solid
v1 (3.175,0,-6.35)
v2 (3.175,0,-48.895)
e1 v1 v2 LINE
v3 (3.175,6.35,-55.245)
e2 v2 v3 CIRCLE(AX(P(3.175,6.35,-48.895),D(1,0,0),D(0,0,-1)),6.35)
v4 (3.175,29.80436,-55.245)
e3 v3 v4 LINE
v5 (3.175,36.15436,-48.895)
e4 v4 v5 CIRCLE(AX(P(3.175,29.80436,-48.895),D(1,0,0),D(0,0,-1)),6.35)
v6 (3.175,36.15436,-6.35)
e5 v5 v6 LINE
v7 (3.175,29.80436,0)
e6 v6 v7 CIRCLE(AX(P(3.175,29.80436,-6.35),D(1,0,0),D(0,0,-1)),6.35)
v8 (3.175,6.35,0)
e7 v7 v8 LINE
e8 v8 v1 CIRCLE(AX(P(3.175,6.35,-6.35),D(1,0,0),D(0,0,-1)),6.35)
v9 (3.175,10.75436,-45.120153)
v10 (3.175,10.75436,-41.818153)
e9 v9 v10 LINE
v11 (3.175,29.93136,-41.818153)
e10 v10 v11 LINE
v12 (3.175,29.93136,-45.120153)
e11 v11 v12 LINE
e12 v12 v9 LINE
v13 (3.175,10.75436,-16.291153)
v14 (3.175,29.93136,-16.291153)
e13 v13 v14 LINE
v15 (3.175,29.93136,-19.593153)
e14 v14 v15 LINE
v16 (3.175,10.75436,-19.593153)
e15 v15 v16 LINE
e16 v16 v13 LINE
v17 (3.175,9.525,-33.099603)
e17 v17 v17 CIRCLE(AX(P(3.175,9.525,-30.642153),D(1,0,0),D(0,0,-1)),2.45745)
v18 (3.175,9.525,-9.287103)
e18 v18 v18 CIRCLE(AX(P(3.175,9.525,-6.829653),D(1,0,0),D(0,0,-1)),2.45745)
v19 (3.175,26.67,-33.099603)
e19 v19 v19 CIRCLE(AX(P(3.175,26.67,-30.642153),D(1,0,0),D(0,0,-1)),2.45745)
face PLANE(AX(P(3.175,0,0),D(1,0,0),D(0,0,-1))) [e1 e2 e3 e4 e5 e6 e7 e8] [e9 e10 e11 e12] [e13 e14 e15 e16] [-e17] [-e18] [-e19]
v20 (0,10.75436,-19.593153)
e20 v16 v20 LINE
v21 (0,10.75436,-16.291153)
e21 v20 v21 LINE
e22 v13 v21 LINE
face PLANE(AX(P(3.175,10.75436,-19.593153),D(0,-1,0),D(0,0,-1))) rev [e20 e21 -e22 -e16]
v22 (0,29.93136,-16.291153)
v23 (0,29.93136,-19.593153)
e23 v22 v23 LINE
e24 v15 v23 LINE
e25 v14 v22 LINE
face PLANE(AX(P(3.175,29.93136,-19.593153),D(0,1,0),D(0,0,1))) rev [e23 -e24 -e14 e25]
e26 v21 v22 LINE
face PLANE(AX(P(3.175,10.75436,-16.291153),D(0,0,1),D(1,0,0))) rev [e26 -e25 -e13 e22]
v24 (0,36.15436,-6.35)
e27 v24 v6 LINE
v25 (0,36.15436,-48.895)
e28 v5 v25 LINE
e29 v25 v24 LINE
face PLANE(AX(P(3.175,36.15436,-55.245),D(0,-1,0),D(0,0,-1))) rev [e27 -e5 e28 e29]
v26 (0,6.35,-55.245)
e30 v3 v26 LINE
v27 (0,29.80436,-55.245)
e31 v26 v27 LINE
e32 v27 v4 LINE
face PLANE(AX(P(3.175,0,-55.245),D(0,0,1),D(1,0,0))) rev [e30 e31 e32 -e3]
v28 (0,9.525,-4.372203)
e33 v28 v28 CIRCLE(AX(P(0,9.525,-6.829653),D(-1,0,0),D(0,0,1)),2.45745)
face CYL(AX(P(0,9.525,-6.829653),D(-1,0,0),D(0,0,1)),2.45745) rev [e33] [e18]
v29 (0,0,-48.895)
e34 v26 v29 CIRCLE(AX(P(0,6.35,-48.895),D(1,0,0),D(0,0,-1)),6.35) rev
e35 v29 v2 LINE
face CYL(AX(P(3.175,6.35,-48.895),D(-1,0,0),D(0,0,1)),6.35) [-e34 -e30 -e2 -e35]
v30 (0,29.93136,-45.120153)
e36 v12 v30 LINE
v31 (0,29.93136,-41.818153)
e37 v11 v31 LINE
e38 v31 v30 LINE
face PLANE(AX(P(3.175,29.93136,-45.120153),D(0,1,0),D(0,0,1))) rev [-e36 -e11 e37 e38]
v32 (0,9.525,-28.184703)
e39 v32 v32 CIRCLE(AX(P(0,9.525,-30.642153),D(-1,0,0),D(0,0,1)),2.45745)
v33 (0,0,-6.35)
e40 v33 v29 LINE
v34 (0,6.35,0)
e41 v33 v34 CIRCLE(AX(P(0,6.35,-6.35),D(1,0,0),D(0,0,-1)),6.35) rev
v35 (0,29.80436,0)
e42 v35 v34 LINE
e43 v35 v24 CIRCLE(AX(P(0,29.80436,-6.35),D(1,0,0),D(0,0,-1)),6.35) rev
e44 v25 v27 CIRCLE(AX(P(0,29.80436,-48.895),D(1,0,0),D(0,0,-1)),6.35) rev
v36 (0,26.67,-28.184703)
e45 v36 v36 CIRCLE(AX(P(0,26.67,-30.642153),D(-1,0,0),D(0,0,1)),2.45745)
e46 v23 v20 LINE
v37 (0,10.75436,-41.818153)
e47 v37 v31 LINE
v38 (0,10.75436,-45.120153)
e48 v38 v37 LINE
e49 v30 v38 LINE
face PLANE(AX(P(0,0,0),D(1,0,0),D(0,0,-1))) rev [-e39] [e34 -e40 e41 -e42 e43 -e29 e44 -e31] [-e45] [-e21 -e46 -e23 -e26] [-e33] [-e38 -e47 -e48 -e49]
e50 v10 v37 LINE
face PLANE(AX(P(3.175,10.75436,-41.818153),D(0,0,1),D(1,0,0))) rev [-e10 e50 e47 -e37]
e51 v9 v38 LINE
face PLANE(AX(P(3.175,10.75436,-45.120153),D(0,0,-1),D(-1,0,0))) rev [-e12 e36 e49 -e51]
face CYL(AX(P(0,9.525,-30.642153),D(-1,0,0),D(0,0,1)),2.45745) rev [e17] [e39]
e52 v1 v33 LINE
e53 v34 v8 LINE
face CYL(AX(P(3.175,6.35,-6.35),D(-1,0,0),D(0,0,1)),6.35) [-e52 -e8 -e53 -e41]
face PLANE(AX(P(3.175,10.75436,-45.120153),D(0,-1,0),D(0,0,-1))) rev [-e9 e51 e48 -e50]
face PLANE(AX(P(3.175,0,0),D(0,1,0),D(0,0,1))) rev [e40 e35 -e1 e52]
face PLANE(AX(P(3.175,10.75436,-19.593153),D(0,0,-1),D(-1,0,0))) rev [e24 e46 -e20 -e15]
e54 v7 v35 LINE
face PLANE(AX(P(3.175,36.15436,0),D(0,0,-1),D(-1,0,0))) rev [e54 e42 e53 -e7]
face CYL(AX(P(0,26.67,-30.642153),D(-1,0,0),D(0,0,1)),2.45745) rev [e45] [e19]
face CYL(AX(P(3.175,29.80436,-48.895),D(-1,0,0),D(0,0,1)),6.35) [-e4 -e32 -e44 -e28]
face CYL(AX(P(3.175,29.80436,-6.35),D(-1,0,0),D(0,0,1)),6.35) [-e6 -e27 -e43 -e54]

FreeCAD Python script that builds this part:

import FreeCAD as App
import Part
import Sketcher
Q = App.Units.Quantity


def edges_at(feature, points):
    """Names of the edges that pass closest to the given points."""
    edges = feature.Shape.Edges
    near = lambda p: min(range(len(edges)), key=lambda i: edges[i].distToShape(Part.Vertex(*p))[0])
    return sorted({f"Edge{near(p) + 1}" for p in points})

doc = App.newDocument("Part")
body = doc.addObject("PartDesign::Body", "Body")

# Sketch on YZ plane
sketch1 = body.newObject("Sketcher::SketchObject", "Sketch")
sketch1.AttachmentSupport = (doc.getObject("YZ_Plane"), [""])
sketch1.MapMode = "FlatFace"
sketch1.addGeometry(Part.LineSegment(App.Vector(36, 0, 0), App.Vector(0, 0, 0)), False)
sketch1.addGeometry(Part.LineSegment(App.Vector(0, 0, 0), App.Vector(0, -55, 0)), False)
sketch1.addGeometry(Part.LineSegment(App.Vector(0, -55, 0), App.Vector(36, -55, 0)), False)
sketch1.addGeometry(Part.LineSegment(App.Vector(36, -55, 0), App.Vector(36, 0, 0)), False)
sketch1.addConstraint(Sketcher.Constraint("Coincident", 0, 2, 1, 1))
sketch1.addConstraint(Sketcher.Constraint("Coincident", 1, 2, 2, 1))
sketch1.addConstraint(Sketcher.Constraint("Coincident", 2, 2, 3, 1))
sketch1.addConstraint(Sketcher.Constraint("Coincident", 3, 2, 0, 1))
sketch1.addConstraint(Sketcher.Constraint("Horizontal", 0))
sketch1.addConstraint(Sketcher.Constraint("Vertical", 1))
sketch1.addConstraint(Sketcher.Constraint("Horizontal", 2))
sketch1.addConstraint(Sketcher.Constraint("Vertical", 3))
sketch1.addConstraint(Sketcher.Constraint("Coincident", 0, 2, -1, 1))
sketch1.addConstraint(Sketcher.Constraint("DistanceY", 1, 2, 1, 1, Q("2.175 in")))
sketch1.addConstraint(Sketcher.Constraint("DistanceX", 0, 2, 0, 1, Q("1.4234 in")))
pad1 = body.newObject("PartDesign::Pad", "Pad")
pad1.Profile = sketch1
pad1.Length = Q("0.125 in")

# Sketch on YZ plane
sketch2 = body.newObject("Sketcher::SketchObject", "Sketch001")
sketch2.AttachmentSupport = (doc.getObject("YZ_Plane"), [""])
sketch2.MapMode = "FlatFace"
sketch2.addGeometry(Part.LineSegment(App.Vector(29.9, -45.1, 0), App.Vector(10.8, -45.1, 0)), False)
sketch2.addGeometry(Part.LineSegment(App.Vector(10.8, -45.1, 0), App.Vector(10.8, -41.8, 0)), False)
sketch2.addGeometry(Part.LineSegment(App.Vector(10.8, -41.8, 0), App.Vector(29.9, -41.8, 0)), False)
sketch2.addGeometry(Part.LineSegment(App.Vector(29.9, -41.8, 0), App.Vector(29.9, -45.1, 0)), False)
sketch2.addGeometry(Part.LineSegment(App.Vector(29.9, -19.6, 0), App.Vector(10.8, -19.6, 0)), False)
sketch2.addGeometry(Part.LineSegment(App.Vector(10.8, -19.6, 0), App.Vector(10.8, -16.3, 0)), False)
sketch2.addGeometry(Part.LineSegment(App.Vector(10.8, -16.3, 0), App.Vector(29.9, -16.3, 0)), False)
sketch2.addGeometry(Part.LineSegment(App.Vector(29.9, -16.3, 0), App.Vector(29.9, -19.6, 0)), False)
sketch2.addConstraint(Sketcher.Constraint("Coincident", 0, 2, 1, 1))
sketch2.addConstraint(Sketcher.Constraint("Coincident", 1, 2, 2, 1))
sketch2.addConstraint(Sketcher.Constraint("Coincident", 2, 2, 3, 1))
sketch2.addConstraint(Sketcher.Constraint("Coincident", 3, 2, 0, 1))
sketch2.addConstraint(Sketcher.Constraint("Coincident", 4, 2, 5, 1))
sketch2.addConstraint(Sketcher.Constraint("Coincident", 5, 2, 6, 1))
sketch2.addConstraint(Sketcher.Constraint("Coincident", 6, 2, 7, 1))
sketch2.addConstraint(Sketcher.Constraint("Coincident", 7, 2, 4, 1))
sketch2.addConstraint(Sketcher.Constraint("Horizontal", 0))
sketch2.addConstraint(Sketcher.Constraint("Vertical", 1))
sketch2.addConstraint(Sketcher.Constraint("Horizontal", 2))
sketch2.addConstraint(Sketcher.Constraint("Vertical", 3))
sketch2.addConstraint(Sketcher.Constraint("Horizontal", 4))
sketch2.addConstraint(Sketcher.Constraint("Vertical", 5))
sketch2.addConstraint(Sketcher.Constraint("Horizontal", 6))
sketch2.addConstraint(Sketcher.Constraint("Vertical", 7))
sketch2.addConstraint(Sketcher.Constraint("Vertical", 1, 2, 4, 2))
sketch2.addConstraint(Sketcher.Constraint("Vertical", 3, 2, 6, 2))
sketch2.addConstraint(Sketcher.Constraint("Equal", 3, 5))
sketch2.addConstraint(Sketcher.Constraint("DistanceY", 1, 1, 1, 2, Q("0.13 in")))
sketch2.addConstraint(Sketcher.Constraint("DistanceX", 0, 2, 0, 1, Q("0.755 in")))
sketch2.addConstraint(Sketcher.Constraint("DistanceY", 1, 2, 4, 2, Q("0.875 in")))
sketch2.addConstraint(Sketcher.Constraint("DistanceX", -1, 1, 0, 2, Q("0.4234 in")))
sketch2.addConstraint(Sketcher.Constraint("DistanceY", 0, 2, -1, 1, 45.120153))
pocket1 = body.newObject("PartDesign::Pocket", "Pocket")
pocket1.Profile = sketch2
pocket1.Length = Q("0.125 in")
pocket1.Reversed = True
doc.recompute()

fillet = body.newObject("PartDesign::Fillet", "Fillet")
fillet.Base = (pocket1, edges_at(pocket1, [
    (1.587, 0, 0),
    (1.587, 36.154, 0),
    (1.587, 36.154, -55.245),
    (1.587, 0, -55.245),
]))
fillet.Radius = Q("0.25 in")

# Sketch on YZ plane
sketch3 = body.newObject("Sketcher::SketchObject", "Sketch002")
sketch3.AttachmentSupport = (doc.getObject("YZ_Plane"), [""])
sketch3.MapMode = "FlatFace"
sketch3.addGeometry(Part.Circle(App.Vector(9.5, -30.6, 0), App.Vector(0, 0, 1), 2.5), False)
sketch3.addGeometry(Part.Circle(App.Vector(26.7, -30.6, 0), App.Vector(0, 0, 1), 2.5), False)
sketch3.addGeometry(Part.Circle(App.Vector(9.5, -6.8, 0), App.Vector(0, 0, 1), 2.5), False)
sketch3.addConstraint(Sketcher.Constraint("Equal", 0, 1))
sketch3.addConstraint(Sketcher.Constraint("Equal", 1, 2))
sketch3.addConstraint(Sketcher.Constraint("Horizontal", 0, 3, 1, 3))
sketch3.addConstraint(Sketcher.Constraint("Vertical", 0, 3, 2, 3))
sketch3.addConstraint(Sketcher.Constraint("Diameter", 0, Q("0.1935 in")))
sketch3.addConstraint(Sketcher.Constraint("DistanceX", -1, 1, 1, 3, Q("1.05 in")))
sketch3.addConstraint(Sketcher.Constraint("DistanceX", -1, 1, 0, 3, Q("0.375 in")))
sketch3.addConstraint(Sketcher.Constraint("DistanceY", 0, 3, 2, 3, Q("0.9375 in")))
sketch3.addConstraint(Sketcher.Constraint("DistanceY", 0, 3, -1, 1, 30.642153))
doc.recompute()
hole = body.newObject("PartDesign::Hole", "Hole")
hole.Profile = sketch3
hole.ThreadType = "None"
hole.Diameter = Q("0.1935 in")
hole.DepthType = "Dimension"
hole.Depth = 9.699415
hole.DrillPoint = "Angled"
hole.DrillPointAngle = 118
hole.Reversed = True

doc.recompute()
